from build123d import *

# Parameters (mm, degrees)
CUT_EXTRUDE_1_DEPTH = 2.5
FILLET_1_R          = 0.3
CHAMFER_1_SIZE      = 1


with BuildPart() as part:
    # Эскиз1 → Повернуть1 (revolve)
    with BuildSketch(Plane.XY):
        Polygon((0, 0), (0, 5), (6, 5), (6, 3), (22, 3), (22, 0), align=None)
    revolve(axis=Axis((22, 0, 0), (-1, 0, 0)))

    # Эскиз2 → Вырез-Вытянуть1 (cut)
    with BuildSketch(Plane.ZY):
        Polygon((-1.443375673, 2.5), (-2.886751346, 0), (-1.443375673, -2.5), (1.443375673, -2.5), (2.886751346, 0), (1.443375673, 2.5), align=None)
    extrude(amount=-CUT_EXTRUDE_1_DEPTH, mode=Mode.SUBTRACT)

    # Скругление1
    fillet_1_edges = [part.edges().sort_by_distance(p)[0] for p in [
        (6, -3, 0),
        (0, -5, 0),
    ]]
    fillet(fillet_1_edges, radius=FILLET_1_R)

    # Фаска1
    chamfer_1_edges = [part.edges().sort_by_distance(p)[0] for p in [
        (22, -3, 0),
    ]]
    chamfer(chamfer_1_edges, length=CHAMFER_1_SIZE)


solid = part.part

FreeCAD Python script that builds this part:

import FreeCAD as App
import Part
import Sketcher
Q = App.Units.Quantity


def edges_at(feature, points):
    """Names of the edges that pass closest to the given points."""
    edges = feature.Shape.Edges
    near = lambda p: min(range(len(edges)), key=lambda i: edges[i].distToShape(Part.Vertex(*p))[0])
    return sorted({f"Edge{near(p) + 1}" for p in points})


def add_polygon(sketch, points):
    """Adds a closed chain of lines whose ends are joined by coincident constraints."""
    first, n = sketch.GeometryCount, len(points)
    for a, b in zip(points, points[1:] + points[:1]):
        sketch.addGeometry(Part.LineSegment(App.Vector(*a, 0), App.Vector(*b, 0)), False)
    for i in range(n):
        sketch.addConstraint(Sketcher.Constraint("Coincident", first + i, 2, first + (i + 1) % n, 1))

doc = App.newDocument("Part")
body = doc.addObject("PartDesign::Body", "Body")

# Sketch on XY plane
sketch1 = body.newObject("Sketcher::SketchObject", "Sketch")
sketch1.AttachmentSupport = (doc.getObject("XY_Plane"), [""])
sketch1.MapMode = "FlatFace"
add_polygon(sketch1, [(0, 5), (0, 0), (22, 0), (22, 3), (6, 3), (6, 5)])  # lines 0-5
sketch1.addConstraint([
    Sketcher.Constraint("Vertical", 0),
    Sketcher.Constraint("Horizontal", 1),
    Sketcher.Constraint("Vertical", 2),
    Sketcher.Constraint("Horizontal", 3),
    Sketcher.Constraint("Vertical", 4),
    Sketcher.Constraint("Horizontal", 5),
    Sketcher.Constraint("Coincident", 0, 2, -1, 1),
    Sketcher.Constraint("DistanceX", 1, 1, 1, 2, Q("22 mm")),
    Sketcher.Constraint("DistanceX", 3, 2, 3, 1, Q("16 mm")),
    Sketcher.Constraint("DistanceY", 0, 2, 0, 1, Q("5 mm")),
    Sketcher.Constraint("DistanceY", 2, 1, 2, 2, Q("3 mm")),
])
revolution = body.newObject("PartDesign::Revolution", "Revolution")
revolution.Profile = sketch1
revolution.ReferenceAxis = (sketch1, ["H_Axis"])
revolution.Angle = 360

# Sketch on YZ plane
sketch2 = body.newObject("Sketcher::SketchObject", "Sketch001")
sketch2.AttachmentSupport = (doc.getObject("YZ_Plane"), [""])
sketch2.MapMode = "FlatFace"
add_polygon(sketch2, [(2.5, -1.443376), (0, -2.886751), (-2.5, -1.443376), (-2.5, 1.443376), (0, 2.886751), (2.5, 1.443376)])  # lines 0-5
sketch2.addConstraint([
    Sketcher.Constraint("Vertical", 2),
    Sketcher.Constraint("Vertical", 5),
    Sketcher.Constraint("Symmetric", 0, 2, 3, 2, -1, 1),
    Sketcher.Constraint("Symmetric", 1, 2, 4, 2, -1, 1),
    Sketcher.Constraint("PointOnObject", 0, 2, -2),
    Sketcher.Constraint("Parallel", 0, 3),
    Sketcher.Constraint("Horizontal", 2, 2, 4, 2),
    Sketcher.Constraint("Angle", 0, Q("-150 deg")),
    Sketcher.Constraint("DistanceX", 2, 2, 4, 2, Q("5 mm")),
    Sketcher.Constraint("DistanceY", 2, 1, 2, 2, Q("2.886751 mm")),
])
pocket1 = body.newObject("PartDesign::Pocket", "Pocket")
pocket1.Profile = sketch2
pocket1.Length = 2.5
pocket1.Reversed = True
doc.recompute()

fillet = body.newObject("PartDesign::Fillet", "Fillet")
fillet.Base = (pocket1, edges_at(pocket1, [(6, -3, 0), (0, -5, 0)]))
fillet.Radius = 0.3
doc.recompute()

chamfer = body.newObject("PartDesign::Chamfer", "Chamfer")
chamfer.Base = (fillet, edges_at(fillet, [(22, -3, 0)]))
chamfer.Size = 1

doc.recompute()
